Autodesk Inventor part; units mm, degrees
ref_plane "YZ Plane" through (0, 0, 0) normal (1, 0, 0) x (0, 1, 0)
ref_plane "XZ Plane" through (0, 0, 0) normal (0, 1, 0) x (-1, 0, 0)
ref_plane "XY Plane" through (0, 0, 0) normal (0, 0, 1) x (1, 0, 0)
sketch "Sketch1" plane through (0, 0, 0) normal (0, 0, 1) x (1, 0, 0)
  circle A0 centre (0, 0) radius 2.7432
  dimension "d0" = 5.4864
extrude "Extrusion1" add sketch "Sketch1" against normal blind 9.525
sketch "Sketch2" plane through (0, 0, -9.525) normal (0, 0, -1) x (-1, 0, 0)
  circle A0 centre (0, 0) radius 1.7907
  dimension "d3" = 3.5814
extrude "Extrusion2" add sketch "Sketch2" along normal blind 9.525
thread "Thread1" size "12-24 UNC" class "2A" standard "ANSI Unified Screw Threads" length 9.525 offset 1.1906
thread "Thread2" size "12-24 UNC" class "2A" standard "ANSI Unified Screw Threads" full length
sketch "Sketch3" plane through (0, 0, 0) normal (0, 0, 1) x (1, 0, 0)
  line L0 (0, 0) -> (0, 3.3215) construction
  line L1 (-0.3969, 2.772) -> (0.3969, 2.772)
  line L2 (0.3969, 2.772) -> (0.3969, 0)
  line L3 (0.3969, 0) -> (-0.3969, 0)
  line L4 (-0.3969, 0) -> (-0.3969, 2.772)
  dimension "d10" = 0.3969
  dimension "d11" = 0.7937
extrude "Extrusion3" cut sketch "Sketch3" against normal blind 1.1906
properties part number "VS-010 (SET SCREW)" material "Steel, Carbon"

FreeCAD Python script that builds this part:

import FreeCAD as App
import Part
import Sketcher
Q = App.Units.Quantity


def add_polygon(sketch, points):
    """Adds a closed chain of lines whose ends are joined by coincident constraints."""
    first, n = sketch.GeometryCount, len(points)
    for a, b in zip(points, points[1:] + points[:1]):
        sketch.addGeometry(Part.LineSegment(App.Vector(*a, 0), App.Vector(*b, 0)), False)
    for i in range(n):
        sketch.addConstraint(Sketcher.Constraint("Coincident", first + i, 2, first + (i + 1) % n, 1))

doc = App.newDocument("Part")
body = doc.addObject("PartDesign::Body", "Body")

# Sketch on XY plane
sketch1 = doc.addObject("Sketcher::SketchObject", "Sketch")
body.addObject(sketch1)
sketch1.AttachmentSupport = (doc.XY_Plane, [""])
sketch1.MapMode = "FlatFace"
sketch1.addGeometry(Part.Circle(App.Vector(0, 0, 0), App.Vector(0, 0, 1), 2.7), False)
sketch1.addConstraint(Sketcher.Constraint("Coincident", 0, 3, -1, 1))
sketch1.addConstraint(Sketcher.Constraint("Diameter", 0, Q("0.216 in")))
pad1 = doc.addObject("PartDesign::Pad", "Pad")
body.addObject(pad1)
pad1.Profile = sketch1
pad1.Length = Q("0.375 in")
pad1.Reversed = True

# Sketch on XY plane
sketch2 = doc.addObject("Sketcher::SketchObject", "Sketch001")
body.addObject(sketch2)
sketch2.AttachmentSupport = (doc.XY_Plane, [""])
sketch2.MapMode = "FlatFace"
sketch2.AttachmentOffset = App.Placement(App.Vector(0, 0, -0.375 * 25.4), App.Rotation())
sketch2.addGeometry(Part.Circle(App.Vector(0, 0, 0), App.Vector(0, 0, 1), 1.8), False)
sketch2.addConstraint(Sketcher.Constraint("Coincident", 0, 3, -1, 1))
sketch2.addConstraint(Sketcher.Constraint("Diameter", 0, Q("0.141 in")))
pad2 = doc.addObject("PartDesign::Pad", "Pad001")
body.addObject(pad2)
pad2.Profile = sketch2
pad2.Length = Q("0.375 in")
pad2.Reversed = True

# Sketch on XY plane
sketch3 = doc.addObject("Sketcher::SketchObject", "Sketch002")
body.addObject(sketch3)
sketch3.AttachmentSupport = (doc.XY_Plane, [""])
sketch3.MapMode = "FlatFace"
add_polygon(sketch3, [(0.4, 2.8), (-0.4, 2.8), (-0.4, 0), (0.4, 0)])  # lines 0-3
sketch3.addConstraint(Sketcher.Constraint("Horizontal", 0))
sketch3.addConstraint(Sketcher.Constraint("Vertical", 1))
sketch3.addConstraint(Sketcher.Constraint("Horizontal", 2))
sketch3.addConstraint(Sketcher.Constraint("Vertical", 3))
sketch3.addConstraint(Sketcher.Constraint("Symmetric", 1, 2, 2, 2, -1, 1))
sketch3.addConstraint(Sketcher.Constraint("DistanceX", 0, 2, 0, 1, Q("0.031252 in")))
sketch3.addConstraint(Sketcher.Constraint("DistanceY", 1, 2, 1, 1, 2.772))
pocket1 = doc.addObject("PartDesign::Pocket", "Pocket")
body.addObject(pocket1)
pocket1.Profile = sketch3
pocket1.Length = Q("0.046874 in")

doc.recompute()
